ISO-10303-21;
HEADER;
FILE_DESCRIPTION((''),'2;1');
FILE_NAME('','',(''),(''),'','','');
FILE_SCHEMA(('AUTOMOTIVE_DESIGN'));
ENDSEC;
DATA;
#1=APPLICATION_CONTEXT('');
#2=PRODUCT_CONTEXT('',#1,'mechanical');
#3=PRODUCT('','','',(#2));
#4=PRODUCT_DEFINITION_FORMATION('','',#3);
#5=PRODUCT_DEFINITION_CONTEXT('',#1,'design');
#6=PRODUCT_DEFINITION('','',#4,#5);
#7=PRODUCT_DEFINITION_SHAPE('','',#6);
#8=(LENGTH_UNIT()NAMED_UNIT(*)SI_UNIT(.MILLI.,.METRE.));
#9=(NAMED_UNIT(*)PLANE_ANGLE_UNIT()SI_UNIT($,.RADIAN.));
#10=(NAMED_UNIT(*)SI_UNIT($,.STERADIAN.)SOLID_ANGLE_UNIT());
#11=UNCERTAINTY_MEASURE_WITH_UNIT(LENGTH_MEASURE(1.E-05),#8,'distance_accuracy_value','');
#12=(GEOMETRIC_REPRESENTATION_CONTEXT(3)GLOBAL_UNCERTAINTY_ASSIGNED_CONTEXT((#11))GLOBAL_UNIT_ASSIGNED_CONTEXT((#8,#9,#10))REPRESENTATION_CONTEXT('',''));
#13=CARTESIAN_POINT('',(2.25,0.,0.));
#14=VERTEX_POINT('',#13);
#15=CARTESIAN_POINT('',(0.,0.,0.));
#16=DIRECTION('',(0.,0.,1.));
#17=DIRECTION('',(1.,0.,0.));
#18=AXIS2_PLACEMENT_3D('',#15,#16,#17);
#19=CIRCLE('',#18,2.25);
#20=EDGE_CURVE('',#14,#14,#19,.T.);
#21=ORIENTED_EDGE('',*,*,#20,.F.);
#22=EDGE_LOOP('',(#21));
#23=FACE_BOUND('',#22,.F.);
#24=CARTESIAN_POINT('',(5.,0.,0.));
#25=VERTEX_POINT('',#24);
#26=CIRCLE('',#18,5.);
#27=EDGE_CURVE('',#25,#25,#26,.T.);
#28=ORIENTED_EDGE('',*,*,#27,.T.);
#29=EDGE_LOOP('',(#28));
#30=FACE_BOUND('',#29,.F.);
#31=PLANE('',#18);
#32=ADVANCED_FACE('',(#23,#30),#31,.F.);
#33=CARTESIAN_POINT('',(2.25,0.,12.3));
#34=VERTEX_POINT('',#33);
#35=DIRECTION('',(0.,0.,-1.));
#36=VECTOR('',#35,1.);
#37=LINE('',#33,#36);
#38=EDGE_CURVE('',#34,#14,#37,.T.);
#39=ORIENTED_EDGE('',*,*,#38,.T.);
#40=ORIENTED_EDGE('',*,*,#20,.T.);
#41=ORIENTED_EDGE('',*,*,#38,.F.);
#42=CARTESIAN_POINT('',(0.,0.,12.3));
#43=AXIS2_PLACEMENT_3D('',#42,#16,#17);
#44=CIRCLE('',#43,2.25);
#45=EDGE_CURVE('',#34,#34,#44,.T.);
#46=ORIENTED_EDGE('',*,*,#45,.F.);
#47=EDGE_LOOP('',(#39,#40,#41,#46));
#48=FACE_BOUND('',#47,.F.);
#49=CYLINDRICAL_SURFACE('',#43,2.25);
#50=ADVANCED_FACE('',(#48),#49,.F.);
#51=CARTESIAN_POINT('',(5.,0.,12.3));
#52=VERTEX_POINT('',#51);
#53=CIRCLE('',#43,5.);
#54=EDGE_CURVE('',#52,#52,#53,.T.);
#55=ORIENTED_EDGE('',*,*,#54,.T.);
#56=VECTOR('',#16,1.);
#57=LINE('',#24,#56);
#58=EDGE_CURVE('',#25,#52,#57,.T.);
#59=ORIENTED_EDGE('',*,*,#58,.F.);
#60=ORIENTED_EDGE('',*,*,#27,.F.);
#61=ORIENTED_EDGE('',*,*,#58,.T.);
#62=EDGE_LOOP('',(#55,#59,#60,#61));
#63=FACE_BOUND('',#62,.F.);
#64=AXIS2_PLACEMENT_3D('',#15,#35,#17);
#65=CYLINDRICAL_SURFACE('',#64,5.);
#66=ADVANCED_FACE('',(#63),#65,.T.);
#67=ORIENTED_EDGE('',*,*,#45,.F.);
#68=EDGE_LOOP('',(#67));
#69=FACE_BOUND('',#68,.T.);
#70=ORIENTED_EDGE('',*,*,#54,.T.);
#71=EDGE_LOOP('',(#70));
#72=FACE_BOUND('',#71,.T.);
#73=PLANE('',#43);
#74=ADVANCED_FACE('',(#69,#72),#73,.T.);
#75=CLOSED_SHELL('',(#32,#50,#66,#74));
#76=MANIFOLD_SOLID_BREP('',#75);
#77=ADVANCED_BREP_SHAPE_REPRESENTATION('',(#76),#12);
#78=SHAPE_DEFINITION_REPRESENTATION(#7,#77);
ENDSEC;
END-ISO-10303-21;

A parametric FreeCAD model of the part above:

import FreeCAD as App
import Part
import Sketcher

doc = App.newDocument("Part")
body = doc.addObject("PartDesign::Body", "Body")

sketch1 = doc.addObject("Sketcher::SketchObject", "Sketch")
body.addObject(sketch1)
sketch1.AttachmentSupport = (doc.XY_Plane, [""])
sketch1.MapMode = "FlatFace"
sketch1.addGeometry(Part.Circle(App.Vector(0, 0, 0), App.Vector(0, 0, 1), 5), False)
sketch1.addConstraint([
    Sketcher.Constraint("Coincident", 0, 3, -1, 1),
    Sketcher.Constraint("Diameter", 0, 10.0),
])
pad1 = doc.addObject("PartDesign::Pad", "Pad")
body.addObject(pad1)
pad1.Profile = sketch1
pad1.Length = 12.3

sketch2 = doc.addObject("Sketcher::SketchObject", "Sketch001")
body.addObject(sketch2)
sketch2.AttachmentSupport = (doc.XY_Plane, [""])
sketch2.MapMode = "FlatFace"
sketch2.AttachmentOffset = App.Placement(App.Vector(0, 0, 12.3), App.Rotation())
sketch2.addGeometry(Part.Circle(App.Vector(0, 0, 0), App.Vector(0, 0, 1), 2.25), False)
sketch2.addConstraint([
    Sketcher.Constraint("Coincident", 0, 3, -1, 1),
    Sketcher.Constraint("Diameter", 0, 4.5),
])
pocket1 = doc.addObject("PartDesign::Pocket", "Pocket")
body.addObject(pocket1)
pocket1.Profile = sketch2
pocket1.Type = "ThroughAll"

doc.recompute()
